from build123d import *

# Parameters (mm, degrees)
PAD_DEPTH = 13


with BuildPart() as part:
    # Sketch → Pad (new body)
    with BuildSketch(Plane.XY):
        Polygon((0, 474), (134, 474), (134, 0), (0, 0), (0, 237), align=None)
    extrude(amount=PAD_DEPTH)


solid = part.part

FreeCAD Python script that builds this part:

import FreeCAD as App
import Part
import Sketcher
from FreeCAD import Vector
Q = App.Units.Quantity


def add_polygon(sketch, points):
    """Adds a closed chain of lines whose ends are joined by coincident constraints."""
    first, n = sketch.GeometryCount, len(points)
    for a, b in zip(points, points[1:] + points[:1]):
        sketch.addGeometry(Part.LineSegment(App.Vector(*a, 0), App.Vector(*b, 0)), False)
    for i in range(n):
        sketch.addConstraint(Sketcher.Constraint("Coincident", first + i, 2, first + (i + 1) % n, 1))

doc = App.newDocument("Part")
body = doc.addObject("PartDesign::Body", "Body")

# Sketch on XY plane
sketch1 = body.newObject("Sketcher::SketchObject", "Sketch")
sketch1.AttachmentSupport = (doc.getObject("XY_Plane"), [""])
sketch1.MapMode = "FlatFace"
add_polygon(sketch1, [(134, 474), (0, 474), (0, 0), (134, 0)])  # lines 0-3
sketch1.addConstraint([
    Sketcher.Constraint("Horizontal", 0),
    Sketcher.Constraint("Vertical", 1),
    Sketcher.Constraint("Horizontal", 2),
    Sketcher.Constraint("Vertical", 3),
    Sketcher.Constraint("Coincident", 1, 2, -1, 1),
    Sketcher.Constraint("DistanceX", 0, 2, 0, 1, Q("134 mm")),
    Sketcher.Constraint("DistanceY", 1, 2, 1, 1, Q("474 mm")),
])
pad1 = body.newObject("PartDesign::Pad", "Pad")
pad1.Profile = sketch1
pad1.Length = 13

doc.recompute()
